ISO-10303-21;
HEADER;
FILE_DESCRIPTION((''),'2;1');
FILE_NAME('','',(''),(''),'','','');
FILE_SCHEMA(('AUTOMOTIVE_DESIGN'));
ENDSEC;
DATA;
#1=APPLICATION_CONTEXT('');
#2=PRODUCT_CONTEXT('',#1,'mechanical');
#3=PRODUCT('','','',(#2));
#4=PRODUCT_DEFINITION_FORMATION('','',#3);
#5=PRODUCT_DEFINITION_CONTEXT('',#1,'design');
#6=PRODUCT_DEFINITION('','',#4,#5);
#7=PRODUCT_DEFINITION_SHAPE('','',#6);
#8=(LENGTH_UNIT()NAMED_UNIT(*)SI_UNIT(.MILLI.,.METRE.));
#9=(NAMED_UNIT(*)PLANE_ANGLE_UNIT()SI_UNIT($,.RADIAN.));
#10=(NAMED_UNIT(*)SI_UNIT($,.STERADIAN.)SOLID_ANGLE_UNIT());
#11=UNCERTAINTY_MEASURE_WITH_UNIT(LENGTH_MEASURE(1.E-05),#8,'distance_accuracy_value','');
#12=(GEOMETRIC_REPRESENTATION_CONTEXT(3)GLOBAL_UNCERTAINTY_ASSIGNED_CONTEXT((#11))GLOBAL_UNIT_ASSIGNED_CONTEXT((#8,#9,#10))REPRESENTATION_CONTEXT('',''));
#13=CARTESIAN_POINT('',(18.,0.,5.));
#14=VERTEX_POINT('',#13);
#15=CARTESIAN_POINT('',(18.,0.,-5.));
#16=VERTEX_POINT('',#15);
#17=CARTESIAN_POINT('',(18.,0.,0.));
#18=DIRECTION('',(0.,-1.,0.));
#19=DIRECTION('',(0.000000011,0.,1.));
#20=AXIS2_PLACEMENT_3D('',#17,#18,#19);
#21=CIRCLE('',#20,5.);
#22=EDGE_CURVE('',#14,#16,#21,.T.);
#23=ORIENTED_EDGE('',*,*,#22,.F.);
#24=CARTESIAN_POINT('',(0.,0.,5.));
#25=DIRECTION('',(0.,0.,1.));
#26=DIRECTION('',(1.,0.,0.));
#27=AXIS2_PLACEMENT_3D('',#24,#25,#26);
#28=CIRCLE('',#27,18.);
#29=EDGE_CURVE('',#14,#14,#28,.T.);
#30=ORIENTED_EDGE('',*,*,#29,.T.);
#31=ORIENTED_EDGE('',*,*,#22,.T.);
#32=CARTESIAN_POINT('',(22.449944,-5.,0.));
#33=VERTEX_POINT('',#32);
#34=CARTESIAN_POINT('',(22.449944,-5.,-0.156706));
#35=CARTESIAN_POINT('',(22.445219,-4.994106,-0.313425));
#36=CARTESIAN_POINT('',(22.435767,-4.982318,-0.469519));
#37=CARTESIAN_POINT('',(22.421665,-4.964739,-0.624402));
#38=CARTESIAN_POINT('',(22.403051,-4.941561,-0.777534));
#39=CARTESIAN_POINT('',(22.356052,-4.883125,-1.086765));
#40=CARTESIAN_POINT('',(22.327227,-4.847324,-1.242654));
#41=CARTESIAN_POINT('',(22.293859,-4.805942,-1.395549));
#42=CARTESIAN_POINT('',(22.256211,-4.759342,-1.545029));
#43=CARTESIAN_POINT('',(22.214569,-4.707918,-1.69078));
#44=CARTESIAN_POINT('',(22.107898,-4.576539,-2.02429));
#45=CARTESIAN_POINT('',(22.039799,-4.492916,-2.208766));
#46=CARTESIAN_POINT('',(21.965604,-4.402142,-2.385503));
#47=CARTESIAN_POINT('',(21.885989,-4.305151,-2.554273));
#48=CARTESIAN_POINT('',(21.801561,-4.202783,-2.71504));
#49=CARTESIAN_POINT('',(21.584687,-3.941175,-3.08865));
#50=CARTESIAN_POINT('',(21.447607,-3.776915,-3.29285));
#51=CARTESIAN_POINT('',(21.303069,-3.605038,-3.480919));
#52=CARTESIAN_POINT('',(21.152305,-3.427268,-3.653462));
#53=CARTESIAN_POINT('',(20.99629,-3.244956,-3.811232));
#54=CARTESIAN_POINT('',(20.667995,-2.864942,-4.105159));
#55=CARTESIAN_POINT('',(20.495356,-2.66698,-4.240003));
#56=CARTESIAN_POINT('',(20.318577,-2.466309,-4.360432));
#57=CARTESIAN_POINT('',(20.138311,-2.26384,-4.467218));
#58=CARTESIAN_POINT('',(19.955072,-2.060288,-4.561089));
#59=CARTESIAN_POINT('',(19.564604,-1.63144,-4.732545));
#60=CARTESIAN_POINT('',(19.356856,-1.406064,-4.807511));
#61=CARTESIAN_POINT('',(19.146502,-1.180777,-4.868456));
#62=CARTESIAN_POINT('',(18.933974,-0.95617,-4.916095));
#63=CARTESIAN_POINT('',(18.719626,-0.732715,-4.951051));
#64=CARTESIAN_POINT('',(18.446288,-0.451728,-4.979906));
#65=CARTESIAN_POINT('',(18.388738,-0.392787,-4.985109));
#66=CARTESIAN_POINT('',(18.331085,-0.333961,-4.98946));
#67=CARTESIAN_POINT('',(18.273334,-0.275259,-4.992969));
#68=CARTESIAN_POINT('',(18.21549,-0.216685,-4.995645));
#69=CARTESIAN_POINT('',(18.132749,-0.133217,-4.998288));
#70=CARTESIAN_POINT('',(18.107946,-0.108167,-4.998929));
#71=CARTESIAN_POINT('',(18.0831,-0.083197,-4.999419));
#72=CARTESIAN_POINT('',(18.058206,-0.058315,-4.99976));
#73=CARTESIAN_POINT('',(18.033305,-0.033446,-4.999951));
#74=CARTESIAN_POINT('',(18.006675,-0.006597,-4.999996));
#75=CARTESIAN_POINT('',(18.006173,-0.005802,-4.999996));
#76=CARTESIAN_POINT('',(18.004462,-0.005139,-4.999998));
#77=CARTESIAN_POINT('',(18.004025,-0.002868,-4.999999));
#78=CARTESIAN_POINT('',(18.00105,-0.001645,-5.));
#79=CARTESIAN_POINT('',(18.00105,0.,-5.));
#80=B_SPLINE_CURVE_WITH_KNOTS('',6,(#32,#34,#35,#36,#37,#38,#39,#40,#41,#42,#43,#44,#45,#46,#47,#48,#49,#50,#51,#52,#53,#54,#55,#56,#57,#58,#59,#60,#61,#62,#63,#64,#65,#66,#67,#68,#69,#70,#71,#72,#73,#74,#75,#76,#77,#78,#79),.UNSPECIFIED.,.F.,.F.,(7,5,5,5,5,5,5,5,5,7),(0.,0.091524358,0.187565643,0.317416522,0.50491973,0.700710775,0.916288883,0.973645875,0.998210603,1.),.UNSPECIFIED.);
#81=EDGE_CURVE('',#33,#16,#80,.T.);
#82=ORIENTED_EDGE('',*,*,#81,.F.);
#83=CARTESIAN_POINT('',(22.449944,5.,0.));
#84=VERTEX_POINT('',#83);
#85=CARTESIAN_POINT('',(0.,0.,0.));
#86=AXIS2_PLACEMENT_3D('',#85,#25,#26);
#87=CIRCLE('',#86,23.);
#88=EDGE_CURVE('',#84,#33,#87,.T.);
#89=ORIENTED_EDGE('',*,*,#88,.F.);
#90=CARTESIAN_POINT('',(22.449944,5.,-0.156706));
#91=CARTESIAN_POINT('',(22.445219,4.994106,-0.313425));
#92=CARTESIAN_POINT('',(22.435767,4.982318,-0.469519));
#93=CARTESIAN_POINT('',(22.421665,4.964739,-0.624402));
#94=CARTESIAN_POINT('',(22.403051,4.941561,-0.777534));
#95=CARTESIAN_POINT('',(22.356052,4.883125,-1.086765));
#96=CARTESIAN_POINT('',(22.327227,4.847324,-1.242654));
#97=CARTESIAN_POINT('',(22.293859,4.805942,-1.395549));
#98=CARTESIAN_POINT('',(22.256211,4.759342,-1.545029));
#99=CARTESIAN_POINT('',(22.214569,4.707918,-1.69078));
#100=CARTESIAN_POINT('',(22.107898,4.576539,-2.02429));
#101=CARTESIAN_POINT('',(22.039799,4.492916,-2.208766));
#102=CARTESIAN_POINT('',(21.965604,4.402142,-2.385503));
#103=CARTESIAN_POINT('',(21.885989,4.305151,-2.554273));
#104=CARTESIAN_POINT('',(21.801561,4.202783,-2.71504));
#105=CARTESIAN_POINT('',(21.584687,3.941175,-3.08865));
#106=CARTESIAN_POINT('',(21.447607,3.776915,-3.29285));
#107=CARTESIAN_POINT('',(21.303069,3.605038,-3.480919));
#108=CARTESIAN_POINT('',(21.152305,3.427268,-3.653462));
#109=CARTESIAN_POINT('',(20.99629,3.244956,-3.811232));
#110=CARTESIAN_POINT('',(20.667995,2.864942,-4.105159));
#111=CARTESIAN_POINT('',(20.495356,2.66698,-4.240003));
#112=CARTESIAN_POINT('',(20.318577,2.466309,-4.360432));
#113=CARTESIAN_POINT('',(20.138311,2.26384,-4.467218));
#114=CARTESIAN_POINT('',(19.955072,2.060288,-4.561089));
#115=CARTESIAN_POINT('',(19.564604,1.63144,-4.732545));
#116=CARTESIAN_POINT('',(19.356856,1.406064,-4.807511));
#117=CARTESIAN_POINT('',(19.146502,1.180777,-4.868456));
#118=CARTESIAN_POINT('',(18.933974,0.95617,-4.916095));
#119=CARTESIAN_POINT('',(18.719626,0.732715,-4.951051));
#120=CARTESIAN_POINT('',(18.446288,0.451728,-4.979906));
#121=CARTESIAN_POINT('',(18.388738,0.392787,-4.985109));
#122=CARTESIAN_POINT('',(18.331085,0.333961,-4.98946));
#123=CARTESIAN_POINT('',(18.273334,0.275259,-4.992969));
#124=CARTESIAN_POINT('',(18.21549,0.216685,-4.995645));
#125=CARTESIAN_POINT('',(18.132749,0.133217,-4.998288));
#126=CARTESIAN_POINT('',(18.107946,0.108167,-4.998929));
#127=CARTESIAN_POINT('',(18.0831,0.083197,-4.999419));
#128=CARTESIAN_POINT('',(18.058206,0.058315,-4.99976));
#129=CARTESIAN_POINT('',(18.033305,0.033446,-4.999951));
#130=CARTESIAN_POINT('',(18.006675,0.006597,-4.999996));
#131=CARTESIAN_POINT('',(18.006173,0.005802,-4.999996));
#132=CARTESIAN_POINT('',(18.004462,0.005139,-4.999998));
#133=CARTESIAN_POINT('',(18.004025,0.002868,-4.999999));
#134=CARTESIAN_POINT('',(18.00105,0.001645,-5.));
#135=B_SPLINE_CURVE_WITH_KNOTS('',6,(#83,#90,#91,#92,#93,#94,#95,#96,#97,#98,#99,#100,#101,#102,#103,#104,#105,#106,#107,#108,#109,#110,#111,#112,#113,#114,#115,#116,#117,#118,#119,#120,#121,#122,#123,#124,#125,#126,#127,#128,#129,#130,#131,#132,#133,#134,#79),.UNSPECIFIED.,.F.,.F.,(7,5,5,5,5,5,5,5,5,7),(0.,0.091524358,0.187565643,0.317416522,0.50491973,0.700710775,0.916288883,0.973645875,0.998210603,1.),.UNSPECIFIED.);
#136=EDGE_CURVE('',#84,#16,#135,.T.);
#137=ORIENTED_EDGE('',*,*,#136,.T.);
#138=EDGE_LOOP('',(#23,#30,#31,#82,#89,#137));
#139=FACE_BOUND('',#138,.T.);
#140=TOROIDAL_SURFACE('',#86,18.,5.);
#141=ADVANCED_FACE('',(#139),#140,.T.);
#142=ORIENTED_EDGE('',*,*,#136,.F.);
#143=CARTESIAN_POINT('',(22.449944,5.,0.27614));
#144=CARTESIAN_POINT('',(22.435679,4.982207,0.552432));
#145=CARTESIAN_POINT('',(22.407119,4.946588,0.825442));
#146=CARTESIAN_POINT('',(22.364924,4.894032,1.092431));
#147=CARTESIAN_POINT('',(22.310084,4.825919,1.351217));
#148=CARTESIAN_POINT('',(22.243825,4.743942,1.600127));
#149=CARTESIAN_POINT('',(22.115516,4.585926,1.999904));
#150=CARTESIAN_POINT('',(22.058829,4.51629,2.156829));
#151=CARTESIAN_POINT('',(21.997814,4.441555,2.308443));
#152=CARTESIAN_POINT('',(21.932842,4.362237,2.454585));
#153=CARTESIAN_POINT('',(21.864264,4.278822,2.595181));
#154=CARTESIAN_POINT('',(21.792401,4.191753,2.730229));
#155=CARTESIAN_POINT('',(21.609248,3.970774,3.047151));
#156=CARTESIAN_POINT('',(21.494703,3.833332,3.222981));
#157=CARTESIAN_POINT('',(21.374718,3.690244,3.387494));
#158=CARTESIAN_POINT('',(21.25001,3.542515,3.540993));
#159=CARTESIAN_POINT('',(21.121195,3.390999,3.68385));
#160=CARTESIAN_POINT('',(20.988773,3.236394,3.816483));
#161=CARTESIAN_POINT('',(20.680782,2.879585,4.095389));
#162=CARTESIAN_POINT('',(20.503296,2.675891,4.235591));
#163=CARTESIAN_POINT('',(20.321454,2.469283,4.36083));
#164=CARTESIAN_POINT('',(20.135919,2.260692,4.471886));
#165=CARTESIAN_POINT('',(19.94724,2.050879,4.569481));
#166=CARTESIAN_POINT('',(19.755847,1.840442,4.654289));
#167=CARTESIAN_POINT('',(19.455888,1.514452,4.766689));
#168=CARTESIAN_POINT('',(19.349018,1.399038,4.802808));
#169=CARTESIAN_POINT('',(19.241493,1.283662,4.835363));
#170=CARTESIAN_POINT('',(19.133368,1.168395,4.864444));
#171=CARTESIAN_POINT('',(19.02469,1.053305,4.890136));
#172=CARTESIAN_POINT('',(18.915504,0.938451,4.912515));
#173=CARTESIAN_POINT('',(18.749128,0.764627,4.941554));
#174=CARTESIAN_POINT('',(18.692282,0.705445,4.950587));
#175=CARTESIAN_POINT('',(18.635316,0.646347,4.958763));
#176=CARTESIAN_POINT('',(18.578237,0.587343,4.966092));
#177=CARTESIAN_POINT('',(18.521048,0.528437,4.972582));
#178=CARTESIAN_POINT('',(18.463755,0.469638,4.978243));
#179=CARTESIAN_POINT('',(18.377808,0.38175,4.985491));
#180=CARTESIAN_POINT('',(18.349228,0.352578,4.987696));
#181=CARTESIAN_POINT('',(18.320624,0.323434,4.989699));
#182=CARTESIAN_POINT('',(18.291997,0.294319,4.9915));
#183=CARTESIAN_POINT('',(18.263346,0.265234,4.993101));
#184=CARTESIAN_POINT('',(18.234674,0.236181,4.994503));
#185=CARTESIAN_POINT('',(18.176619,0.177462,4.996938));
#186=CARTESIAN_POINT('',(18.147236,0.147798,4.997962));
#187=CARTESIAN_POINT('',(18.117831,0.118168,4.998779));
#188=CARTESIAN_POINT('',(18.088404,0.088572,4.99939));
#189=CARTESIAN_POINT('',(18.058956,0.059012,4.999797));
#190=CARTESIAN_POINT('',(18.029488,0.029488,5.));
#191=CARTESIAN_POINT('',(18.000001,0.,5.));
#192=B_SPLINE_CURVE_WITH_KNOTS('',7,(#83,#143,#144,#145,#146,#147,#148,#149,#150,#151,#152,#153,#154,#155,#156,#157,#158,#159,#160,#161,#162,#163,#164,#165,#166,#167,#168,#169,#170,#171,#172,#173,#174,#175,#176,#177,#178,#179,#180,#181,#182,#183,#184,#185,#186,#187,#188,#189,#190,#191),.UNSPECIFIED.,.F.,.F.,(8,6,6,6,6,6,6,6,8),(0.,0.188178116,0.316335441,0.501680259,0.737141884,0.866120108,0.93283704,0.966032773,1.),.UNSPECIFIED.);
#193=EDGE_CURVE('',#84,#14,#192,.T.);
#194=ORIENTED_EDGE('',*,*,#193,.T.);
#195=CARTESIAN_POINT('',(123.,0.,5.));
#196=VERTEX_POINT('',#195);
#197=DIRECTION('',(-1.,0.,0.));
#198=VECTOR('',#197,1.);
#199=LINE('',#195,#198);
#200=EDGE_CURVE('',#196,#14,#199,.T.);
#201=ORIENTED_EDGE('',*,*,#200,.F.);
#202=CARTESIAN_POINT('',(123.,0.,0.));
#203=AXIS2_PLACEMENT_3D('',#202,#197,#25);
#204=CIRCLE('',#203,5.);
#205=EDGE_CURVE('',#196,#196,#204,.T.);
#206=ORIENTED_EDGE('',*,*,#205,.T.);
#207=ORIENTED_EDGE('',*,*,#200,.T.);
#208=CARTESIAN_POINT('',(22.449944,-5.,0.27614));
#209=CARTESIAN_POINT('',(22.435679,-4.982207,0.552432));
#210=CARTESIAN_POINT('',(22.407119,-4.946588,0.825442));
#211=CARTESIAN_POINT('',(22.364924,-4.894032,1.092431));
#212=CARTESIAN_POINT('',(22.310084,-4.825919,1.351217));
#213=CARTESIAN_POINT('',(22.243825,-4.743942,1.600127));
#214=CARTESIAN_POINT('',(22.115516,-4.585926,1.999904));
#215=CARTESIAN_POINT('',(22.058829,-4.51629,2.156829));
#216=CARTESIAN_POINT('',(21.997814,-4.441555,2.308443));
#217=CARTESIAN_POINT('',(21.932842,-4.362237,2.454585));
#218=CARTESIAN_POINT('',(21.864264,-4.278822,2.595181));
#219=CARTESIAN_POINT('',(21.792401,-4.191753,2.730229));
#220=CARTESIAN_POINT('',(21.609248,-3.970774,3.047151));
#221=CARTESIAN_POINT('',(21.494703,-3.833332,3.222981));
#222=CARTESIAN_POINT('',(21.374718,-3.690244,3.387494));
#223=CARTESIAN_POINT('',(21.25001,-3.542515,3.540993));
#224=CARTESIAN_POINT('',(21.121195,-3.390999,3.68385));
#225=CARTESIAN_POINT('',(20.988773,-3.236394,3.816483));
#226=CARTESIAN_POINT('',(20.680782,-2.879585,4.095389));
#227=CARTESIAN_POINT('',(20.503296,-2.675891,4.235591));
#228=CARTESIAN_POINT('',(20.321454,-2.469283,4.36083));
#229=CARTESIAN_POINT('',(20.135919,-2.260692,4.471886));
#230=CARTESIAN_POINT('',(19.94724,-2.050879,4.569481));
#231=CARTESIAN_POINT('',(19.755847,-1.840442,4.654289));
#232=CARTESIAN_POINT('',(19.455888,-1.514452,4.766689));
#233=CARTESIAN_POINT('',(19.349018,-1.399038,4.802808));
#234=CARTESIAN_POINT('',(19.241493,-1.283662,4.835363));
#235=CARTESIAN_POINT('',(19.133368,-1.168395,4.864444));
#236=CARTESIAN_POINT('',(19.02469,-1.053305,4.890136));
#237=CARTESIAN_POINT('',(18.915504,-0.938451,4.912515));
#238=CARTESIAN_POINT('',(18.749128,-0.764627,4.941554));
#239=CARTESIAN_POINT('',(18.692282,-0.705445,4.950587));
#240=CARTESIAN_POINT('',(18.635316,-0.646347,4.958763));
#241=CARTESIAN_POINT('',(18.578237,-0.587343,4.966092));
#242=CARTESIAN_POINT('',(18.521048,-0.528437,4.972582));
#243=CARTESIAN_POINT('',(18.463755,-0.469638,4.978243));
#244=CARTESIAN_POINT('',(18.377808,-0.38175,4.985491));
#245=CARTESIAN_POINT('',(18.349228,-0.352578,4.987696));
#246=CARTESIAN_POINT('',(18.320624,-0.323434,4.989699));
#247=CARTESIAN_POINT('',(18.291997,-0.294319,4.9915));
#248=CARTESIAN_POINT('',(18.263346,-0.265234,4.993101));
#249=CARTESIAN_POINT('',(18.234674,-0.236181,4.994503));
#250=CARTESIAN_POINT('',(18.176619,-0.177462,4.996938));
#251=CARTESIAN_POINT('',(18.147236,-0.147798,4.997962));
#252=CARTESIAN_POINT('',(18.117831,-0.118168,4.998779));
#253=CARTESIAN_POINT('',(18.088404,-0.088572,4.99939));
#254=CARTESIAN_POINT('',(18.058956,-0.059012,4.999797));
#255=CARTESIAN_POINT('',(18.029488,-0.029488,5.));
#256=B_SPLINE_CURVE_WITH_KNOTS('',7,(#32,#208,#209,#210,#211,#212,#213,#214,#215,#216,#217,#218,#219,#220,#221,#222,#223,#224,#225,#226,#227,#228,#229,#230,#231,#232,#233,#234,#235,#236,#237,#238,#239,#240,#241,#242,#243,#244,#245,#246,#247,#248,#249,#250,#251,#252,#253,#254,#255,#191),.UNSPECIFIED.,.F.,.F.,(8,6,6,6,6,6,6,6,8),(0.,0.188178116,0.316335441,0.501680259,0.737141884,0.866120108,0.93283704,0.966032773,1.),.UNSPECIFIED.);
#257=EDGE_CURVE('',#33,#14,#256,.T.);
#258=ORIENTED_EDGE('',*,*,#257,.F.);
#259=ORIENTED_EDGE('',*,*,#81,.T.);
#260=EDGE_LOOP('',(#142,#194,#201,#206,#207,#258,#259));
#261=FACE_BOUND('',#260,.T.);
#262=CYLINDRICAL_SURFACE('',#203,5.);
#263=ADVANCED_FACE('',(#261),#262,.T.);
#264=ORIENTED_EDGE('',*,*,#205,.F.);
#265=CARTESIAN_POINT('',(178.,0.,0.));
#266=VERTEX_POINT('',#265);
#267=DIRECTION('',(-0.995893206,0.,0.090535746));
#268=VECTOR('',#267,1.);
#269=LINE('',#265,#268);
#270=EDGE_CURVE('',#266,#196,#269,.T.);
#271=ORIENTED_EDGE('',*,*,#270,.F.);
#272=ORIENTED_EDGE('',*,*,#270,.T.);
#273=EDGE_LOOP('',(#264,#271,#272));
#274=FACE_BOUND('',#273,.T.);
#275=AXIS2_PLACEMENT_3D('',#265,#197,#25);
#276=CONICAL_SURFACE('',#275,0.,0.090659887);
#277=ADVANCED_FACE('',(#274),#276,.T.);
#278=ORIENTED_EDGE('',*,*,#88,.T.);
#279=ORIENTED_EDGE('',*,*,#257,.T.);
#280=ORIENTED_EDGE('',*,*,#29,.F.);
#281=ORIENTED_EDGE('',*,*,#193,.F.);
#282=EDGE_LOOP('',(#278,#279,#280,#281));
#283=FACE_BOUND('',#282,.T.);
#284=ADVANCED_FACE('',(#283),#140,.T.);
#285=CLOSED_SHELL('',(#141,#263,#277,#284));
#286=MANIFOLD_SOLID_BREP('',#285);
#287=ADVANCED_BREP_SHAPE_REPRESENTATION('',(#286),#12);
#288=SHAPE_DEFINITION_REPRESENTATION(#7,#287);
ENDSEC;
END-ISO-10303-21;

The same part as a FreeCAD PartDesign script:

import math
import FreeCAD as App
import Part
import Sketcher

doc = App.newDocument("Part")
body = doc.addObject("PartDesign::Body", "Body")

# Sketch on XZ plane
sketch1 = doc.addObject("Sketcher::SketchObject", "Sketch")
body.addObject(sketch1)
sketch1.AttachmentSupport = (doc.XZ_Plane, [""])
sketch1.MapMode = "FlatFace"
sketch1.addGeometry([
    Part.ArcOfCircle(Part.Circle(App.Vector(18, 0, 0), App.Vector(0, 0, 1), 5), math.radians(89.999999), math.radians(360.000001)),
    Part.ArcOfCircle(Part.Circle(App.Vector(18, 0, 0), App.Vector(0, 0, 1), 5), math.radians(-0.000004), math.radians(90.000004)),
], False)
sketch1.addConstraint([
    Sketcher.Constraint("Tangent", 0, 1, 1, 2),
    Sketcher.Constraint("Coincident", 1, 1, 0, 2),
    Sketcher.Constraint("PointOnObject", 0, 3, -1),
    Sketcher.Constraint("PointOnObject", 1, 1, -1),
    Sketcher.Constraint("Vertical", 1, 3, 0, 1),
    Sketcher.Constraint("Radius", 0, 5.0),
    Sketcher.Constraint("DistanceX", -1, 1, 0, 3, 18.0),
])
revolution = doc.addObject("PartDesign::Revolution", "Revolution")
body.addObject(revolution)
revolution.Profile = sketch1
revolution.ReferenceAxis = (sketch1, ["V_Axis"])
revolution.Angle = 360

# Sketch on XZ plane
sketch2 = doc.addObject("Sketcher::SketchObject", "Sketch001")
body.addObject(sketch2)
sketch2.AttachmentSupport = (doc.XZ_Plane, [""])
sketch2.MapMode = "FlatFace"
sketch2.addGeometry([
    Part.LineSegment(App.Vector(178, 0, 0), App.Vector(123, 5, 0)),
    Part.LineSegment(App.Vector(123, 5, 0), App.Vector(18, 5, 0)),
    Part.LineSegment(App.Vector(18, 5, 0), App.Vector(18, 0, 0)),
    Part.LineSegment(App.Vector(18, 0, 0), App.Vector(178, 0, 0)),
], False)
sketch2.addConstraint([
    Sketcher.Constraint("Coincident", 0, 2, 1, 1),
    Sketcher.Constraint("Coincident", 1, 2, 2, 1),
    Sketcher.Constraint("Coincident", 2, 2, 3, 1),
    Sketcher.Constraint("Coincident", 3, 2, 0, 1),
    Sketcher.Constraint("Horizontal", 1),
    Sketcher.Constraint("Vertical", 2),
    Sketcher.Constraint("Horizontal", 3),
    Sketcher.Constraint("PointOnObject", 2, 2, -1),
    Sketcher.Constraint("DistanceX", 1, 2, 1, 1, 105.0),
    Sketcher.Constraint("DistanceX", 3, 1, 3, 2, 160.0),
    Sketcher.Constraint("DistanceY", 2, 2, 2, 1, 5.0),
    Sketcher.Constraint("DistanceX", -1, 1, 0, 2, 123.0),
])
revolution2 = doc.addObject("PartDesign::Revolution", "Revolution001")
body.addObject(revolution2)
revolution2.Profile = sketch2
revolution2.ReferenceAxis = (sketch2, ["H_Axis"])
revolution2.Angle = 360

doc.recompute()
